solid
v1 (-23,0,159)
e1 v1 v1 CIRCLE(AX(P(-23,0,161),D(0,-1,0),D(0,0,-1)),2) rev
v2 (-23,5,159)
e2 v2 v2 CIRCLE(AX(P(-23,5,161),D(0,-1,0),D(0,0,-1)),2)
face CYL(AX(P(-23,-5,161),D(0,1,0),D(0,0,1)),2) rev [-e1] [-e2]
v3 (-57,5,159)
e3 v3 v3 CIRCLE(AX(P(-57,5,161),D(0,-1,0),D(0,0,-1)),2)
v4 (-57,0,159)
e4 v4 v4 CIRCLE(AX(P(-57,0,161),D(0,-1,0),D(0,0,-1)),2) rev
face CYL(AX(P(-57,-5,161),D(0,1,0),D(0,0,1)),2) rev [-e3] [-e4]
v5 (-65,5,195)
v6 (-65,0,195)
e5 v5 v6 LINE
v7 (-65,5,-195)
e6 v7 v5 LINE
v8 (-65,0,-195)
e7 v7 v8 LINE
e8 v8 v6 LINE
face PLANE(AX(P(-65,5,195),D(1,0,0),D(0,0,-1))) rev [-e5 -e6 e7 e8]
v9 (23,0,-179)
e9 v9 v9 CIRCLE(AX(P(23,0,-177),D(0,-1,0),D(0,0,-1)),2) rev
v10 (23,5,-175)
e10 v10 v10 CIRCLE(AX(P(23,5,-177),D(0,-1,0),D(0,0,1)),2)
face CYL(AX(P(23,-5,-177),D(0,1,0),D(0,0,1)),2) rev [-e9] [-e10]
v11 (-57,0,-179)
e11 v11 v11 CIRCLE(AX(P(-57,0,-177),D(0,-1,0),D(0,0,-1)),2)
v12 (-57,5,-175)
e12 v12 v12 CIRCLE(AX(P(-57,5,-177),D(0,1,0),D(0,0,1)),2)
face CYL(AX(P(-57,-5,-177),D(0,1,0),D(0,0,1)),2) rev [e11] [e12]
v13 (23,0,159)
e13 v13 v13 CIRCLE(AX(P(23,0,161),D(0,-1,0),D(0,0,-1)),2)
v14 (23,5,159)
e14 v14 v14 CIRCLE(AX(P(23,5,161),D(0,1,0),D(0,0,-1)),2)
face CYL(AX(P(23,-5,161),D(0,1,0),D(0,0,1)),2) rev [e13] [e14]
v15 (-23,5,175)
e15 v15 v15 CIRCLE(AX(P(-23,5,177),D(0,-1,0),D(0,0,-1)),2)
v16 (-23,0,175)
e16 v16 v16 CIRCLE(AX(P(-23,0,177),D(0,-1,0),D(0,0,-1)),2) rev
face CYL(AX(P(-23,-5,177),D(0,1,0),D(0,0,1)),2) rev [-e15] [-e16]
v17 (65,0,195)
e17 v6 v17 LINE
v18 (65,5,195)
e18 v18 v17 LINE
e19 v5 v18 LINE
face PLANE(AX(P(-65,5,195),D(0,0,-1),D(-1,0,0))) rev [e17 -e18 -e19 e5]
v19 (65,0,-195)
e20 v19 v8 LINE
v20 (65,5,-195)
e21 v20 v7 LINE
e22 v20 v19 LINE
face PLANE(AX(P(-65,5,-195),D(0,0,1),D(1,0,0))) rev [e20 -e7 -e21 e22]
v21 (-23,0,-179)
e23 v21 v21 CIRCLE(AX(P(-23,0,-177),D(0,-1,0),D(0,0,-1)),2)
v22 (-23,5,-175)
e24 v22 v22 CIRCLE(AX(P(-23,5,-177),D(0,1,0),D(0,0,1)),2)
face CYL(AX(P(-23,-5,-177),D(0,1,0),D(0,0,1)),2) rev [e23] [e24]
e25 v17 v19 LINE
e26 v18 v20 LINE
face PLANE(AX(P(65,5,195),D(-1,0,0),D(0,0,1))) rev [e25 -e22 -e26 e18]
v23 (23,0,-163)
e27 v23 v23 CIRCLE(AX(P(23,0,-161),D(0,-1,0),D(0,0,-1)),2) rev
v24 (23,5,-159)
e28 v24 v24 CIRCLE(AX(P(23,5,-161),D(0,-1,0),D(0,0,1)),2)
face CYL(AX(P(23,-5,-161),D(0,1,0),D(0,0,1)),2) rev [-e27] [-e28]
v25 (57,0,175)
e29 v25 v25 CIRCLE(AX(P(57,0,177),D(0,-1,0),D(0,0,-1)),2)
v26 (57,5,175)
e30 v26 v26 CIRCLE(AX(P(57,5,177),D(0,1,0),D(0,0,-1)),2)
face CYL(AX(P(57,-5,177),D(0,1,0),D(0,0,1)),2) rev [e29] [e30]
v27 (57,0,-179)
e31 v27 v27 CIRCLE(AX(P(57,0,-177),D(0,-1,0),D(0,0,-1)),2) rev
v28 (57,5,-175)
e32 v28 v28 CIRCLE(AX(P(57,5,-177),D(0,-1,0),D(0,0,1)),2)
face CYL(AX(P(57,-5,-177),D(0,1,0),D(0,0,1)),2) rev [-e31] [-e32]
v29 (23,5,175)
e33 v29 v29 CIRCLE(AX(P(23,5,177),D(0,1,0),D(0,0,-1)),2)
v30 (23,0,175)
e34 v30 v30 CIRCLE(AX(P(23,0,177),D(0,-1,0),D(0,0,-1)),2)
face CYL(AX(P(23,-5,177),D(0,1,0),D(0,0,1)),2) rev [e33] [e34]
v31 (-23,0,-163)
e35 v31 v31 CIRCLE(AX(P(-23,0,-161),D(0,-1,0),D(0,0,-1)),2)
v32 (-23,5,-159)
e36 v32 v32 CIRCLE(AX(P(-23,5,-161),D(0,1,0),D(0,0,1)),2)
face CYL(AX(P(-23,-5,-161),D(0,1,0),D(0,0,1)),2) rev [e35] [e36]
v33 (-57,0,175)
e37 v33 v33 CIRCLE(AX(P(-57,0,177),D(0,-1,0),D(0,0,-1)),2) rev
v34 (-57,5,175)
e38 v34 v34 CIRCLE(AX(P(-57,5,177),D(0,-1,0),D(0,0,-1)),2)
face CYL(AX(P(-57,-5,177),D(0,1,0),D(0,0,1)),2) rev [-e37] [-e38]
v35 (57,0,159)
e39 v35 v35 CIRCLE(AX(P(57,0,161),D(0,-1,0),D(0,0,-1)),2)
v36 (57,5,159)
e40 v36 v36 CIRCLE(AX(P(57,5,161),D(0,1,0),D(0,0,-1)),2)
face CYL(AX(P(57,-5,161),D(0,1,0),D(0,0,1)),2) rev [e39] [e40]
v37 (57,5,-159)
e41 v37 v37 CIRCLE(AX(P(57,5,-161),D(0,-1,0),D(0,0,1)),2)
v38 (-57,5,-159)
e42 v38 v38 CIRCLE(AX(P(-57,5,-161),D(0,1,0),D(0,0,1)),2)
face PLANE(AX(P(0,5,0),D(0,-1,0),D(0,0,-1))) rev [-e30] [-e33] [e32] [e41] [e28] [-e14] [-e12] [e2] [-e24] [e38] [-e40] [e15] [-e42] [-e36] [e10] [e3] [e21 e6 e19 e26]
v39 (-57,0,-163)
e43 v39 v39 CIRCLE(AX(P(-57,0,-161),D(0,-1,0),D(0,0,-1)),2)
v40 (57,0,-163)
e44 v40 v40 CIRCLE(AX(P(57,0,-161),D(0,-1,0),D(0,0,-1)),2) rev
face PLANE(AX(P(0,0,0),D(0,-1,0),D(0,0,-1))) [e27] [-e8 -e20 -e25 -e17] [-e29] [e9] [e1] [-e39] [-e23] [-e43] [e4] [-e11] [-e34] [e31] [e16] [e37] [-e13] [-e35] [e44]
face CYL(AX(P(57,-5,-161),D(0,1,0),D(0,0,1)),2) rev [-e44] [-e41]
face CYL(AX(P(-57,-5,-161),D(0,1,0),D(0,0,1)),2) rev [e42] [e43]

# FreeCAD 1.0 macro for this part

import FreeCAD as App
import Part
import Sketcher

V = App.Vector
Q = App.Units.Quantity

doc = App.newDocument("Part")
body = doc.addObject("PartDesign::Body", "Body")

# Sketch on XZ plane
sketch1 = body.newObject("Sketcher::SketchObject", "Sketch")
sketch1.AttachmentSupport = (doc.getObject("XZ_Plane"), [""])
sketch1.MapMode = "FlatFace"
sketch1.addGeometry([
    Part.LineSegment(V(-65, -195, 0), V(-65, 195, 0)),
    Part.LineSegment(V(-65, 195, 0), V(65, 195, 0)),
    Part.LineSegment(V(65, 195, 0), V(65, -195, 0)),
    Part.LineSegment(V(65, -195, 0), V(-65, -195, 0)),
], False)
sketch1.addConstraint([
    Sketcher.Constraint("Coincident", 0, 2, 1, 1),
    Sketcher.Constraint("Coincident", 1, 2, 2, 1),
    Sketcher.Constraint("Coincident", 2, 2, 3, 1),
    Sketcher.Constraint("Coincident", 3, 2, 0, 1),
    Sketcher.Constraint("Vertical", 0),
    Sketcher.Constraint("Horizontal", 1),
    Sketcher.Constraint("Vertical", 2),
    Sketcher.Constraint("Horizontal", 3),
    Sketcher.Constraint("Symmetric", 0, 2, 2, 2, -1, 1),
    Sketcher.Constraint("DistanceX", 1, 1, 1, 2, Q("130 mm")),
    Sketcher.Constraint("DistanceY", 0, 1, 0, 2, Q("390 mm")),
])
pad1 = body.newObject("PartDesign::Pad", "Pad")
pad1.Profile = sketch1
pad1.Length = 5
pad1.Reversed = True

# Sketch on XZ plane
sketch2 = body.newObject("Sketcher::SketchObject", "Sketch001")
sketch2.AttachmentSupport = (doc.getObject("XZ_Plane"), [""])
sketch2.MapMode = "FlatFace"
sketch2.AttachmentOffset = App.Placement(V(0, 0, -5), App.Rotation())
sketch2.addGeometry([
    Part.Circle(V(-57, -177, 0), V(0, 0, 1), 2),
    Part.Circle(V(-57, -161, 0), V(0, 0, 1), 2),
    Part.Circle(V(-23, -177, 0), V(0, 0, 1), 2),
    Part.Circle(V(-23, -161, 0), V(0, 0, 1), 2),
], False)
sketch2.addConstraint([
    Sketcher.Constraint("Equal", 0, 1),
    Sketcher.Constraint("Equal", 1, 2),
    Sketcher.Constraint("Equal", 2, 3),
    Sketcher.Constraint("Horizontal", 0, 3, 2, 3),
    Sketcher.Constraint("Horizontal", 1, 3, 3, 3),
    Sketcher.Constraint("Vertical", 0, 3, 1, 3),
    Sketcher.Constraint("Vertical", 2, 3, 3, 3),
    Sketcher.Constraint("Diameter", 0, Q("4 mm")),
    Sketcher.Constraint("DistanceX", 0, 3, -1, 1, Q("57 mm")),
    Sketcher.Constraint("DistanceY", 0, 3, -1, 1, Q("177 mm")),
    Sketcher.Constraint("DistanceY", 1, 3, -1, 1, Q("161 mm")),
    Sketcher.Constraint("DistanceX", 2, 3, -1, 1, Q("23 mm")),
])
pocket1 = body.newObject("PartDesign::Pocket", "Pocket")
pocket1.Profile = sketch2
pocket1.Length = 10
pocket1.Reversed = True
doc.recompute()

mirrored = body.newObject("PartDesign::Mirrored", "Mirrored")
mirrored.Originals = [pocket1]
mirrored.MirrorPlane = (doc.getObject("XY_Plane"), [""])
body.Tip = mirrored
doc.recompute()

mirrored2 = body.newObject("PartDesign::Mirrored", "Mirrored001")
mirrored2.Originals = [pocket1]
mirrored2.MirrorPlane = (doc.getObject("YZ_Plane"), [""])
body.Tip = mirrored2

# Sketch on XZ plane
sketch3 = body.newObject("Sketcher::SketchObject", "Sketch002")
sketch3.AttachmentSupport = (doc.getObject("XZ_Plane"), [""])
sketch3.MapMode = "FlatFace"
sketch3.AttachmentOffset = App.Placement(V(0, 0, -5), App.Rotation())
sketch3.addGeometry([
    Part.Circle(V(57, 177, 0), V(0, 0, 1), 2),
    Part.Circle(V(57, 161, 0), V(0, 0, 1), 2),
    Part.Circle(V(23, 177, 0), V(0, 0, 1), 2),
    Part.Circle(V(23, 161, 0), V(0, 0, 1), 2),
], False)
sketch3.addConstraint([
    Sketcher.Constraint("Equal", 0, 1),
    Sketcher.Constraint("Equal", 1, 2),
    Sketcher.Constraint("Equal", 2, 3),
    Sketcher.Constraint("Horizontal", 0, 3, 2, 3),
    Sketcher.Constraint("Horizontal", 1, 3, 3, 3),
    Sketcher.Constraint("Vertical", 0, 3, 1, 3),
    Sketcher.Constraint("Vertical", 2, 3, 3, 3),
    Sketcher.Constraint("Diameter", 0, Q("4 mm")),
    Sketcher.Constraint("DistanceX", -1, 1, 0, 3, Q("57 mm")),
    Sketcher.Constraint("DistanceY", -1, 1, 0, 3, Q("177 mm")),
    Sketcher.Constraint("DistanceY", -1, 1, 1, 3, Q("161 mm")),
    Sketcher.Constraint("DistanceX", -1, 1, 2, 3, Q("23 mm")),
])
pocket2 = body.newObject("PartDesign::Pocket", "Pocket001")
pocket2.Profile = sketch3
pocket2.Length = 10
pocket2.Reversed = True

doc.recompute()
